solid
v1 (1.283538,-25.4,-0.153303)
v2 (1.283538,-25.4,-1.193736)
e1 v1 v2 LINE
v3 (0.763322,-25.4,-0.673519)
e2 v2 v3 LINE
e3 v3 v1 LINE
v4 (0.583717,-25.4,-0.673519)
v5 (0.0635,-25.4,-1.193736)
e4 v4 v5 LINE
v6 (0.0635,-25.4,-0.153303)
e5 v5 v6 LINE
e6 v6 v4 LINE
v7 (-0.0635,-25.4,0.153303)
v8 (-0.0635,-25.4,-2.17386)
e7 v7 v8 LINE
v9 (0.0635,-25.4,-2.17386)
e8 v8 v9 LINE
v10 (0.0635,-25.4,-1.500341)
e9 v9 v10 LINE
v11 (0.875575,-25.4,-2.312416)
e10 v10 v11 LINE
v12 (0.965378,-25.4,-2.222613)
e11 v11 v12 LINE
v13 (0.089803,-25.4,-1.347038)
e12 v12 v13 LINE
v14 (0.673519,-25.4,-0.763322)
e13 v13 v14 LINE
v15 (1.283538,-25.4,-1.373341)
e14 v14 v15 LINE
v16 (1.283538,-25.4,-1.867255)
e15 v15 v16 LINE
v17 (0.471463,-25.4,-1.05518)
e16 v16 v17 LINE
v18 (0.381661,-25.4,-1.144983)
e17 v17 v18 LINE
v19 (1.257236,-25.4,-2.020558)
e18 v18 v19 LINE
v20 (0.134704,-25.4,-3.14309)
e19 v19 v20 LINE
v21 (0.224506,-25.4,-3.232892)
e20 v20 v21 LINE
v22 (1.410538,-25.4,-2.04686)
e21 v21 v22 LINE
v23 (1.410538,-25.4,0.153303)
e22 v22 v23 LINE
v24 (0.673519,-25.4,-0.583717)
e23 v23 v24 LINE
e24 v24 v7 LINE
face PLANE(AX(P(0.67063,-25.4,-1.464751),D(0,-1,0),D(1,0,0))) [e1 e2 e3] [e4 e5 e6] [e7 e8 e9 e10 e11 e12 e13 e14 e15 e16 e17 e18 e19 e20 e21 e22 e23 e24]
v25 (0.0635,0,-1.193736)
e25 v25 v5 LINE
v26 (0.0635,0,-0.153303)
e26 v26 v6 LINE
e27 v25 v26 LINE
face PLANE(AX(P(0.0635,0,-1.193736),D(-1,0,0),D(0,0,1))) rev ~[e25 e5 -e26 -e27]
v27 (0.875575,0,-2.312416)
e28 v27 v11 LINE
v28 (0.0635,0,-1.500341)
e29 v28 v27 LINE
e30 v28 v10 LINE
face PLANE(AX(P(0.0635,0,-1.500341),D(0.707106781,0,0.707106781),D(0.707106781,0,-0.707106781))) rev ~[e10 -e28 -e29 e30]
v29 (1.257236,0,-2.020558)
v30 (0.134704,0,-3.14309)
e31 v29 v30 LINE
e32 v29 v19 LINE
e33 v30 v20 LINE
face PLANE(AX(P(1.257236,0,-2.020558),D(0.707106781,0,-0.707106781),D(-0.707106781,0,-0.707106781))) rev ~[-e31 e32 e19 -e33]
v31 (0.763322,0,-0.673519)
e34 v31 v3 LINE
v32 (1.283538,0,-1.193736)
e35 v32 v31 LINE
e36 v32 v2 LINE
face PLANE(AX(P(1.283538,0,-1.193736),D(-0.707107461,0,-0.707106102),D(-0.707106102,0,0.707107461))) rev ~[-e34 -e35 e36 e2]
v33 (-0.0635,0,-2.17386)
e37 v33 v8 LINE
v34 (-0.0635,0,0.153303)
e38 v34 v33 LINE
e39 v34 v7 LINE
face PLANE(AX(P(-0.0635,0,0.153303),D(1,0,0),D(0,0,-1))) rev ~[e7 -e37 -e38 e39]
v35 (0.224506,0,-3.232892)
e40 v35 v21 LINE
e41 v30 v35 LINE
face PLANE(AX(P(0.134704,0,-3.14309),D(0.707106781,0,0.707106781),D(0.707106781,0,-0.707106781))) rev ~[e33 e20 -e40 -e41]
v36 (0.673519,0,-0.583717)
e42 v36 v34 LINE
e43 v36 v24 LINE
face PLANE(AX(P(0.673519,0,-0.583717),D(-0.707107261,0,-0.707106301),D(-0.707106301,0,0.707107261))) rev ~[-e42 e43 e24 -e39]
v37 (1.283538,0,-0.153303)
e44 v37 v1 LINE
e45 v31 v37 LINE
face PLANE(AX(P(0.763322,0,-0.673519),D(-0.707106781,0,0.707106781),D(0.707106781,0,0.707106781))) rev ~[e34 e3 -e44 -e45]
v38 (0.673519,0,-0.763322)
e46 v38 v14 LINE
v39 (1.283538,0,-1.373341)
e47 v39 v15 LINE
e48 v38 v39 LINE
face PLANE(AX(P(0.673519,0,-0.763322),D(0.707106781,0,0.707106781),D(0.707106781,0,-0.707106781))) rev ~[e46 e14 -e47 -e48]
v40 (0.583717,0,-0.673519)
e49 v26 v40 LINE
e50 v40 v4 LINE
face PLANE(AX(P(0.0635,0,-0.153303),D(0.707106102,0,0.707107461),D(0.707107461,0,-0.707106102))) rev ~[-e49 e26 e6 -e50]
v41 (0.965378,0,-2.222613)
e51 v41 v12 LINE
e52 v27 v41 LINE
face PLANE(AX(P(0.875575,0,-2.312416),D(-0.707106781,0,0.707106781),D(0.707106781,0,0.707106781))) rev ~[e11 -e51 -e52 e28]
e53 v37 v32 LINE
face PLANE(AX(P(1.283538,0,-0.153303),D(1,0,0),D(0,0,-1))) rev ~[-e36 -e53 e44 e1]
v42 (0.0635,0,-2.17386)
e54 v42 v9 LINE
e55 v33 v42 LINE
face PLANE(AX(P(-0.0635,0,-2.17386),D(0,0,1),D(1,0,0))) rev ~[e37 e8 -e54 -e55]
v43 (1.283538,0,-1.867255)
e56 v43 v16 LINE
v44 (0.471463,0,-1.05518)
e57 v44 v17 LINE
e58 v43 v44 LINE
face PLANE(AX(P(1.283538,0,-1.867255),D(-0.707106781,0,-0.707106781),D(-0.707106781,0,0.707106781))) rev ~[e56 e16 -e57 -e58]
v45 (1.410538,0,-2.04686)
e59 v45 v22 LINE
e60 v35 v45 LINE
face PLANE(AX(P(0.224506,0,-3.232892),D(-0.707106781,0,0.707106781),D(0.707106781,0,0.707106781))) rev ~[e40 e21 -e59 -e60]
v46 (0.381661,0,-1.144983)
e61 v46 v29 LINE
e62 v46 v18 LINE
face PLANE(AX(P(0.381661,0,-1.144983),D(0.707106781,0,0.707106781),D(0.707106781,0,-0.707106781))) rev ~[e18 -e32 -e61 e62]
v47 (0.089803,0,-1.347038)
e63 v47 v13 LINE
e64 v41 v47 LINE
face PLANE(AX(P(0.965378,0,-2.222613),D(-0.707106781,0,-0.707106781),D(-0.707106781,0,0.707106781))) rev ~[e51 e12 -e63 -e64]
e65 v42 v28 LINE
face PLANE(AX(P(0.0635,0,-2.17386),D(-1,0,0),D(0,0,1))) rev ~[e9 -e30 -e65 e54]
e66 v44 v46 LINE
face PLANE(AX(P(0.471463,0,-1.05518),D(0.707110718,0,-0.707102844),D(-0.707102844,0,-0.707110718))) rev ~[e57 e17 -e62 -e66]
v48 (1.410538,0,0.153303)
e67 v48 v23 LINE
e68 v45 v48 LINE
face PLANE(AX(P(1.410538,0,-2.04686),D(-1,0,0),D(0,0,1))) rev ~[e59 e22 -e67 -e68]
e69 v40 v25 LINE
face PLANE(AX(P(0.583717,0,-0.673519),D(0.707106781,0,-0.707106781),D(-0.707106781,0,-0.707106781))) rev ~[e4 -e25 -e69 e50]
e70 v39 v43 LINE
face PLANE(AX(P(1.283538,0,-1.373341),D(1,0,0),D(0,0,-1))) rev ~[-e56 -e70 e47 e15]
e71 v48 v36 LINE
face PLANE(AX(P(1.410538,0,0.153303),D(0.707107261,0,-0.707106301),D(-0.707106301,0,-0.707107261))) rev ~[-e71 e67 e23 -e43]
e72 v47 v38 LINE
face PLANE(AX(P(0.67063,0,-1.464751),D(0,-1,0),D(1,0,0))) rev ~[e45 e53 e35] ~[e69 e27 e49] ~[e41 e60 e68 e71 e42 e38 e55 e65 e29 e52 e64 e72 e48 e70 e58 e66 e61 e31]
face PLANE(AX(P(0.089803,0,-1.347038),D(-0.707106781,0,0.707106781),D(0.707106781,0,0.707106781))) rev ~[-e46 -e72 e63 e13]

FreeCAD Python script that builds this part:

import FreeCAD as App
import Part
import Sketcher
from FreeCAD import Vector
Q = App.Units.Quantity


def add_polygon(sketch, points):
    """Adds a closed chain of lines whose ends are joined by coincident constraints."""
    first, n = sketch.GeometryCount, len(points)
    for a, b in zip(points, points[1:] + points[:1]):
        sketch.addGeometry(Part.LineSegment(App.Vector(*a, 0), App.Vector(*b, 0)), False)
    for i in range(n):
        sketch.addConstraint(Sketcher.Constraint("Coincident", first + i, 2, first + (i + 1) % n, 1))

doc = App.newDocument("Part")
params = doc.addObject("Spreadsheet::Sheet", "Params")
for row, (alias, value) in enumerate([
    ("sketch1_width", "0.005 in"),
    ("sketch1_length", "0.005 in"),
    ("sketch1_length2", "0.0625 in"),
    ("pad1_length", "1 in"),
], start=1):
    params.set(f"A{row}", alias)
    params.set(f"B{row}", "=" + value)
    params.setAlias(f"B{row}", alias)

body = doc.addObject("PartDesign::Body", "Body")

sketch1 = body.newObject("Sketcher::SketchObject", "Sketch")
sketch1.AttachmentSupport = (doc.getObject("XZ_Plane"), [""])
sketch1.MapMode = "FlatFace"
add_polygon(sketch1, [(1.410538, -2.04686), (1.410538, 0.153303), (0.673519, -0.583717), (-0.0635, 0.153303), (-0.0635, -2.17386), (0.0635, -2.17386), (0.0635, -1.500341), (0.875575, -2.312416), (0.965378, -2.222613), (0.089803, -1.347038), (0.673519, -0.763322), (1.283538, -1.373341), (1.283538, -1.867255), (0.471463, -1.05518), (0.381661, -1.144983), (1.257236, -2.020558), (0.134704, -3.14309), (0.224506, -3.232892)])
add_polygon(sketch1, [(0.583717, -0.673519), (0.0635, -1.193736), (0.0635, -0.153303)])
add_polygon(sketch1, [(1.283538, -1.193736), (0.763322, -0.673519), (1.283538, -0.153303)])
sketch1.addConstraint([
    Sketcher.Constraint("Vertical", 0),
    Sketcher.Constraint("Vertical", 3),
    Sketcher.Constraint("Horizontal", 4),
    Sketcher.Constraint("Vertical", 5),
    Sketcher.Constraint("Vertical", 11),
    Sketcher.Constraint("Vertical", 19),
    Sketcher.Constraint("Vertical", 23),
    Sketcher.Constraint("Symmetric", 2, 2, 19, 2, -1, 1),
    Sketcher.Constraint("Perpendicular", 1, 2),
    Sketcher.Constraint("Parallel", 2, 6),
    Sketcher.Constraint("Perpendicular", 6, 7),
    Sketcher.Constraint("Perpendicular", 7, 8),
    Sketcher.Constraint("Perpendicular", 8, 9),
    Sketcher.Constraint("Perpendicular", 9, 10),
    Sketcher.Constraint("Parallel", 10, 12),
    Sketcher.Constraint("Parallel", 12, 14),
    Sketcher.Constraint("Perpendicular", 14, 15),
    Sketcher.Constraint("Perpendicular", 15, 16),
    Sketcher.Constraint("Perpendicular", 16, 17),
    Sketcher.Constraint("Parallel", 17, 18),
    Sketcher.Constraint("Perpendicular", 18, 20),
    Sketcher.Constraint("Parallel", 20, 21),
    Sketcher.Constraint("Perpendicular", 21, 22),
    Sketcher.Constraint("Horizontal", 0, 2, 2, 2),
    Sketcher.Constraint("Horizontal", 20, 2, 21, 2),
    Sketcher.Constraint("Horizontal", 19, 2, 22, 2),
    Sketcher.Constraint("Horizontal", 18, 2, 23, 2),
    Sketcher.Constraint("Vertical", 1, 2, 9, 2),
    Sketcher.Constraint("Vertical", 5, 2, 18, 2),
    Sketcher.Constraint("Vertical", 11, 2, 22, 2),
    Sketcher.Constraint("Equal", 6, 12),
    Sketcher.Constraint("Equal", 7, 13),
    Sketcher.Constraint("Equal", 8, 14),
    Sketcher.Constraint("Equal", 13, 16),
    Sketcher.Constraint("DistanceX", 4, 1, 4, 2, Q("0.005 in")),
    Sketcher.Constraint("Distance", 7, Q("0.005 in")),
    Sketcher.Constraint("Distance", 15, Q("0.0625 in")),
    Sketcher.Constraint("DistanceX", 11, 2, 17, 2, Q("0.005 in")),
    Sketcher.Constraint("Distance", 9, Q("0.0325 in")),
    Sketcher.Constraint("DistanceY", 5, 1, 5, 2, Q("0.673519 mm")),
    Sketcher.Constraint("DistanceY", 6, 2, 1, 2, Q("1.728699 mm")),
    Sketcher.Constraint("DistanceX", 20, 2, 1, 2, Q("0.089802 mm")),
    Sketcher.Constraint("DistanceY", 20, 2, 1, 2, Q("0.089802 mm")),
    Sketcher.Constraint("Distance", 8, Q("1.23825 mm")),
    Sketcher.Constraint("DistanceY", 0, 1, 0, 2, Q("2.200163 mm")),
    Sketcher.Constraint("DistanceY", 11, 2, 11, 1, Q("0.493914 mm")),
    Sketcher.Constraint("DistanceY", 19, 1, 19, 2, Q("1.040433 mm")),
])
sketch1.setExpression("Constraints[58]", "Params.sketch1_width")
sketch1.setExpression("Constraints[59]", "Params.sketch1_length")
sketch1.setExpression("Constraints[60]", "Params.sketch1_length2")
pad1 = body.newObject("PartDesign::Pad", "Pad")
pad1.Profile = sketch1
pad1.setExpression("Length", "Params.pad1_length")

doc.recompute()
